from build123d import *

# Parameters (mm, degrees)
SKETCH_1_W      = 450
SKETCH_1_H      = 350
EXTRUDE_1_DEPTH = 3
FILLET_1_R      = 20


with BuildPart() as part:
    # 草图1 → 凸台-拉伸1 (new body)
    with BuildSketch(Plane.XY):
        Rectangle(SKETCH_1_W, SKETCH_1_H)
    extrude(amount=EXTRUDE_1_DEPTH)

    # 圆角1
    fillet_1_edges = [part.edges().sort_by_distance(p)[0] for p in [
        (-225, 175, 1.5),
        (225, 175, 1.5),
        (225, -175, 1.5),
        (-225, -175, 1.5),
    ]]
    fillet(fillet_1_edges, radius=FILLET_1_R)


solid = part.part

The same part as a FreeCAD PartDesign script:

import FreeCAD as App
import Part
import Sketcher

V = App.Vector
Q = App.Units.Quantity


def edges_at(feature, points):
    """Names of the edges that pass closest to the given points."""
    edges = feature.Shape.Edges
    near = lambda p: min(range(len(edges)), key=lambda i: edges[i].distToShape(Part.Vertex(*p))[0])
    return sorted({f"Edge{near(p) + 1}" for p in points})


def add_polygon(sketch, points):
    """Adds a closed chain of lines whose ends are joined by coincident constraints."""
    first, n = sketch.GeometryCount, len(points)
    for a, b in zip(points, points[1:] + points[:1]):
        sketch.addGeometry(Part.LineSegment(App.Vector(*a, 0), App.Vector(*b, 0)), False)
    for i in range(n):
        sketch.addConstraint(Sketcher.Constraint("Coincident", first + i, 2, first + (i + 1) % n, 1))

doc = App.newDocument("Part")
body = doc.addObject("PartDesign::Body", "Body")

# Sketch on XY plane
sketch1 = doc.addObject("Sketcher::SketchObject", "Sketch")
body.addObject(sketch1)
sketch1.AttachmentSupport = (doc.XY_Plane, [""])
sketch1.MapMode = "FlatFace"
add_polygon(sketch1, [(-225, 175), (-225, -175), (225, -175), (225, 175)])  # lines 0-3
sketch1.addConstraint(Sketcher.Constraint("Vertical", 0))
sketch1.addConstraint(Sketcher.Constraint("Horizontal", 1))
sketch1.addConstraint(Sketcher.Constraint("Vertical", 2))
sketch1.addConstraint(Sketcher.Constraint("Horizontal", 3))
sketch1.addConstraint(Sketcher.Constraint("Symmetric", 0, 2, 2, 2, -1, 1))
sketch1.addConstraint(Sketcher.Constraint("DistanceX", 1, 1, 1, 2, Q("450 mm")))
sketch1.addConstraint(Sketcher.Constraint("DistanceY", 0, 2, 0, 1, Q("350 mm")))
pad1 = doc.addObject("PartDesign::Pad", "Pad")
body.addObject(pad1)
pad1.Profile = sketch1
pad1.Length = 3
doc.recompute()

fillet = doc.addObject("PartDesign::Fillet", "Fillet")
body.addObject(fillet)
fillet.Base = (pad1, edges_at(pad1, [
    (-225, 175, 1.5),
    (225, 175, 1.5),
    (225, -175, 1.5),
    (-225, -175, 1.5),
]))
fillet.Radius = 20

doc.recompute()
